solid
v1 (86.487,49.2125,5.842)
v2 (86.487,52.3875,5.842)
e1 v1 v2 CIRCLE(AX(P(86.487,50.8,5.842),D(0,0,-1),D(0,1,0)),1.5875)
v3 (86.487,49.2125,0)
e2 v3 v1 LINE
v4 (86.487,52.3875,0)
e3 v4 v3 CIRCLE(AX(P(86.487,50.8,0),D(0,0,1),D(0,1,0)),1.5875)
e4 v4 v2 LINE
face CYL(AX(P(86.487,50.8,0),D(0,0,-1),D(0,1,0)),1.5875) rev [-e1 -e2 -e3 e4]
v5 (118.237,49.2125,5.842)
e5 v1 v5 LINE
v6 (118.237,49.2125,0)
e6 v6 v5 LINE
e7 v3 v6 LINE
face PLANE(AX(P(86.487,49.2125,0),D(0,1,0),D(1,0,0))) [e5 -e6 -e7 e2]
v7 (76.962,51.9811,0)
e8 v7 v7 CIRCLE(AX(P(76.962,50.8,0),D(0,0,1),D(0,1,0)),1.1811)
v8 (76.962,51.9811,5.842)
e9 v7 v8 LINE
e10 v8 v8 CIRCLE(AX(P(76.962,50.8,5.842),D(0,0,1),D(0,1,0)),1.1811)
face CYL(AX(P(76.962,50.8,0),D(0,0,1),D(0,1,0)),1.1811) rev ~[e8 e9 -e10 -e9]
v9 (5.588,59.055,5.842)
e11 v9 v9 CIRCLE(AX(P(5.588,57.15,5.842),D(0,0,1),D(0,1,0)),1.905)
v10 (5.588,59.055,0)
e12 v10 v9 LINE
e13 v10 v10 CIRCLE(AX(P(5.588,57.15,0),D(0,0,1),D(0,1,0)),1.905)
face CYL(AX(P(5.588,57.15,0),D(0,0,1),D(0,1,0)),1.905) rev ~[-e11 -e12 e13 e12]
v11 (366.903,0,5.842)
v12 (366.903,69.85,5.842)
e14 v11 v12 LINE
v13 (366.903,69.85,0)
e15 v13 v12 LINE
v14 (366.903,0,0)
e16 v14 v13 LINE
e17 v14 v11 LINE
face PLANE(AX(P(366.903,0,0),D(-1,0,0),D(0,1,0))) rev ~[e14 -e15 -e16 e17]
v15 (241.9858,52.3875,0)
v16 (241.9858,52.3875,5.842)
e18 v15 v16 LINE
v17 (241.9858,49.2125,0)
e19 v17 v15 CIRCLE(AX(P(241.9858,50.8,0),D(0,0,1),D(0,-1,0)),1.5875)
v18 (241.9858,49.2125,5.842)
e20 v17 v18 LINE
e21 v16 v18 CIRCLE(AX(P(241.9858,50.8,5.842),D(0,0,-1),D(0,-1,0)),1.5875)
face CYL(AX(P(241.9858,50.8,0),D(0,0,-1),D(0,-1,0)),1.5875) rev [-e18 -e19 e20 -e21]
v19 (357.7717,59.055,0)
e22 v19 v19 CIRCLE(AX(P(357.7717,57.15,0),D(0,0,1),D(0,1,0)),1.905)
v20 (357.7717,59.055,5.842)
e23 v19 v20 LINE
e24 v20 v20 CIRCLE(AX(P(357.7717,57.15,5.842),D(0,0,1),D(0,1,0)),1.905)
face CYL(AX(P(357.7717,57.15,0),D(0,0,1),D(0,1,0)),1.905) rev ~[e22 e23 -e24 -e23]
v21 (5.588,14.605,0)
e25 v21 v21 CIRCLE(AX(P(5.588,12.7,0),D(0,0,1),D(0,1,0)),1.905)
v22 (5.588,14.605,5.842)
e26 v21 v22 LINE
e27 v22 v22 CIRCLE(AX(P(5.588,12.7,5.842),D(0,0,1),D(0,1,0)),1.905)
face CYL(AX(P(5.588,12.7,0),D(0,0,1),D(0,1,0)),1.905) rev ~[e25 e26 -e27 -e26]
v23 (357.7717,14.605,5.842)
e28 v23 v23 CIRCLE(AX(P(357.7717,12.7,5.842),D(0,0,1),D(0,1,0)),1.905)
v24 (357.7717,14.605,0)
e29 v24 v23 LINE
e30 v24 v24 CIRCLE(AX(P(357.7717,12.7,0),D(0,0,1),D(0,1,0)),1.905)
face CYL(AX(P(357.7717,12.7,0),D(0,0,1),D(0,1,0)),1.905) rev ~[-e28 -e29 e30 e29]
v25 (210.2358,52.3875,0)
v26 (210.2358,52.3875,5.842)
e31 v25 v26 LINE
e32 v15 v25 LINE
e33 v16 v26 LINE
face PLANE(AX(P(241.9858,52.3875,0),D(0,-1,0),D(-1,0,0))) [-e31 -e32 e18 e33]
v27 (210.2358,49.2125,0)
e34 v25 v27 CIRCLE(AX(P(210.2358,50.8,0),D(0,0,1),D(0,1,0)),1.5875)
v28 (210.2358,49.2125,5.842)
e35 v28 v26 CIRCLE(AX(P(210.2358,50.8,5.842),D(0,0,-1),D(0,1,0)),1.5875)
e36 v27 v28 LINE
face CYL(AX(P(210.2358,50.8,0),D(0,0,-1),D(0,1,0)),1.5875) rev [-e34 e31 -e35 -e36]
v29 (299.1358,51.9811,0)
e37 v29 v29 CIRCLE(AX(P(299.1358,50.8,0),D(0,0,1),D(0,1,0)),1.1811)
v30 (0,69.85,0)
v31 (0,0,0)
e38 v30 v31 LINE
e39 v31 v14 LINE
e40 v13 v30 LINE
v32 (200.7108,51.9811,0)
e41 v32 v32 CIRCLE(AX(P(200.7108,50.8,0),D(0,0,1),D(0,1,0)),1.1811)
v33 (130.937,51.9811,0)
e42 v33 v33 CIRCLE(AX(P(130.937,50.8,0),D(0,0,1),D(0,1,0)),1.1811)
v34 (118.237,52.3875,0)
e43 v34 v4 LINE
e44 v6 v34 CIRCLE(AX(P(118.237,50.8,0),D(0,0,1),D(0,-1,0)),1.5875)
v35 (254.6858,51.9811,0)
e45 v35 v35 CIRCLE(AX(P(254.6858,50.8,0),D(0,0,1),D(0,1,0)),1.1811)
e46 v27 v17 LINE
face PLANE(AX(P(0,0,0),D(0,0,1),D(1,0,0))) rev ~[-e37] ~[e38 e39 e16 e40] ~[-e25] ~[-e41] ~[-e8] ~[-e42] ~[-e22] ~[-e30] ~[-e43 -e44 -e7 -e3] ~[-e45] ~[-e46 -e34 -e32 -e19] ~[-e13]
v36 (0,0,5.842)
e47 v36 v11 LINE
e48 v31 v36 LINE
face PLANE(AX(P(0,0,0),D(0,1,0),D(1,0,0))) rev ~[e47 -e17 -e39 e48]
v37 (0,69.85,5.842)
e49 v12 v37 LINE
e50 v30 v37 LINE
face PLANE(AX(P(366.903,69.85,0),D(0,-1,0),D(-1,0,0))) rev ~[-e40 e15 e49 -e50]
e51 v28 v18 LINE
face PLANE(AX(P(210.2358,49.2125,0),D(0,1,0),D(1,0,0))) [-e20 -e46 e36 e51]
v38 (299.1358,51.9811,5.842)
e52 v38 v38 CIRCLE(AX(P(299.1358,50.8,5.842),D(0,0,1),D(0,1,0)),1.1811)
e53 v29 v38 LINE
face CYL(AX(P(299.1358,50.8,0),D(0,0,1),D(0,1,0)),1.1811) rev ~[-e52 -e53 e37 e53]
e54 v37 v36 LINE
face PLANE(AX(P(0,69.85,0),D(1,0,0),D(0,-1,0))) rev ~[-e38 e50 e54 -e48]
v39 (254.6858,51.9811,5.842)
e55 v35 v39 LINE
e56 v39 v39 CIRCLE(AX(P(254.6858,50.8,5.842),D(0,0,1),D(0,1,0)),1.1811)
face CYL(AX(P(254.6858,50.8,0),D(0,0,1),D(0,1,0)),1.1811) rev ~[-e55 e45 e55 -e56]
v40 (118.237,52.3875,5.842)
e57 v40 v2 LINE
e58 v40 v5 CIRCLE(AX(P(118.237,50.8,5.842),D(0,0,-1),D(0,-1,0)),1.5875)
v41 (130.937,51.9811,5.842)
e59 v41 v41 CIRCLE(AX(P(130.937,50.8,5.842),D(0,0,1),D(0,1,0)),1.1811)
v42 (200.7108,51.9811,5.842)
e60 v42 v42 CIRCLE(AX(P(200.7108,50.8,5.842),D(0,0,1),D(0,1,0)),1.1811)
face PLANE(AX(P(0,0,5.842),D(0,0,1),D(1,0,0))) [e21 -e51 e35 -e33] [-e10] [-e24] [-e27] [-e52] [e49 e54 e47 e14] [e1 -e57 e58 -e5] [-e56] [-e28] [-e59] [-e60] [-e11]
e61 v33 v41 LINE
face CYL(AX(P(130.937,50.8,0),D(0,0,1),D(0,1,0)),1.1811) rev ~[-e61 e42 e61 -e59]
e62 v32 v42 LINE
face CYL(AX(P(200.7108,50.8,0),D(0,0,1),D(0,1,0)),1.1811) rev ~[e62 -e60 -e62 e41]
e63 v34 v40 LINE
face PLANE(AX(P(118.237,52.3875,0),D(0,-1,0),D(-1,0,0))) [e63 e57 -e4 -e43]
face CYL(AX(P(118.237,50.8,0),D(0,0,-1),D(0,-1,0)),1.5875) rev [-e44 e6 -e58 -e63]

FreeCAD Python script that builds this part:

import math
import FreeCAD as App
import Part
import Sketcher
Q = App.Units.Quantity

doc = App.newDocument("Part")
body = doc.addObject("PartDesign::Body", "Body")

# Sketch on XY plane
sketch1 = body.newObject("Sketcher::SketchObject", "Sketch")
sketch1.AttachmentSupport = (doc.getObject("XY_Plane"), [""])
sketch1.MapMode = "FlatFace"
sketch1.addGeometry([
    Part.LineSegment(App.Vector(367, 70, 0), App.Vector(0, 70, 0)),
    Part.LineSegment(App.Vector(0, 70, 0), App.Vector(0, 0, 0)),
    Part.LineSegment(App.Vector(0, 0, 0), App.Vector(367, 0, 0)),
    Part.LineSegment(App.Vector(367, 0, 0), App.Vector(367, 70, 0)),
], False)
sketch1.addConstraint([
    Sketcher.Constraint("Coincident", 0, 2, 1, 1),
    Sketcher.Constraint("Coincident", 1, 2, 2, 1),
    Sketcher.Constraint("Coincident", 2, 2, 3, 1),
    Sketcher.Constraint("Coincident", 3, 2, 0, 1),
    Sketcher.Constraint("Horizontal", 0),
    Sketcher.Constraint("Vertical", 1),
    Sketcher.Constraint("Horizontal", 2),
    Sketcher.Constraint("Vertical", 3),
    Sketcher.Constraint("Coincident", 1, 2, -1, 1),
    Sketcher.Constraint("DistanceY", 1, 2, 1, 1, Q("2.75 in")),
    Sketcher.Constraint("DistanceX", 0, 2, 0, 1, Q("14.445 in")),
])
pad1 = body.newObject("PartDesign::Pad", "Pad")
pad1.Profile = sketch1
pad1.Length = Q("0.23 in")

# Sketch on XY plane
sketch2 = body.newObject("Sketcher::SketchObject", "Sketch001")
sketch2.AttachmentSupport = (doc.getObject("XY_Plane"), [""])
sketch2.MapMode = "FlatFace"
sketch2.addGeometry([
    Part.Circle(App.Vector(357.8, 57.1, 0), App.Vector(0, 0, 1), 1.9),
    Part.Circle(App.Vector(357.8, 12.7, 0), App.Vector(0, 0, 1), 1.9),
], False)
sketch2.addConstraint([
    Sketcher.Constraint("Equal", 0, 1),
    Sketcher.Constraint("Vertical", 0, 3, 1, 3),
    Sketcher.Constraint("Diameter", 0, Q("0.15 in")),
    Sketcher.Constraint("DistanceY", -1, 1, 1, 3, Q("0.5 in")),
    Sketcher.Constraint("DistanceY", -1, 1, 0, 3, Q("2.25 in")),
    Sketcher.Constraint("DistanceX", -1, 1, 0, 3, Q("14.0855 in")),
])
doc.recompute()
hole = body.newObject("PartDesign::Hole", "Hole")
hole.Profile = sketch2
hole.ThreadType = "None"
hole.Diameter = Q("0.15 in")
hole.DepthType = "ThroughAll"
hole.Reversed = True

# Sketch on XY plane
sketch3 = body.newObject("Sketcher::SketchObject", "Sketch002")
sketch3.AttachmentSupport = (doc.getObject("XY_Plane"), [""])
sketch3.MapMode = "FlatFace"
sketch3.addGeometry([
    Part.Circle(App.Vector(5.6, 12.7, 0), App.Vector(0, 0, 1), 1.9),
    Part.Circle(App.Vector(5.6, 57.1, 0), App.Vector(0, 0, 1), 1.9),
], False)
sketch3.addConstraint([
    Sketcher.Constraint("Equal", 0, 1),
    Sketcher.Constraint("Vertical", 0, 3, 1, 3),
    Sketcher.Constraint("Diameter", 0, Q("0.15 in")),
    Sketcher.Constraint("DistanceY", -1, 1, 0, 3, Q("0.5 in")),
    Sketcher.Constraint("DistanceX", -1, 1, 0, 3, Q("0.22 in")),
    Sketcher.Constraint("DistanceY", -1, 1, 1, 3, Q("2.25 in")),
])
doc.recompute()
hole2 = body.newObject("PartDesign::Hole", "Hole001")
hole2.Profile = sketch3
hole2.ThreadType = "None"
hole2.Diameter = Q("0.15 in")
hole2.DepthType = "ThroughAll"
hole2.Reversed = True

# Sketch on XY plane
sketch4 = body.newObject("Sketcher::SketchObject", "Sketch003")
sketch4.AttachmentSupport = (doc.getObject("XY_Plane"), [""])
sketch4.MapMode = "FlatFace"
sketch4.addGeometry([
    Part.ArcOfCircle(Part.Circle(App.Vector(242, 50.8, 0), App.Vector(0, 0, 1), 1.6), math.radians(-90), math.radians(90)),  # 0
    Part.LineSegment(App.Vector(242, 52.4, 0), App.Vector(210.2, 52.4, 0)),  # 1
    Part.ArcOfCircle(Part.Circle(App.Vector(210.2, 50.8, 0), App.Vector(0, 0, 1), 1.6), math.radians(90), math.radians(270)),  # 2
    Part.LineSegment(App.Vector(210.2, 49.2, 0), App.Vector(242, 49.2, 0)),  # 3
    Part.ArcOfCircle(Part.Circle(App.Vector(118.2, 50.8, 0), App.Vector(0, 0, 1), 1.6), math.radians(-90), math.radians(90)),  # 4
    Part.LineSegment(App.Vector(118.2, 52.4, 0), App.Vector(86.5, 52.4, 0)),  # 5
    Part.ArcOfCircle(Part.Circle(App.Vector(86.5, 50.8, 0), App.Vector(0, 0, 1), 1.6), math.radians(90), math.radians(270)),  # 6
    Part.LineSegment(App.Vector(86.5, 49.2, 0), App.Vector(118.2, 49.2, 0)),  # 7
], False)
sketch4.addConstraint([
    Sketcher.Constraint("Tangent", 0, 2, 1, 1),
    Sketcher.Constraint("Tangent", 1, 2, 2, 1),
    Sketcher.Constraint("Tangent", 2, 2, 3, 1),
    Sketcher.Constraint("Tangent", 3, 2, 0, 1),
    Sketcher.Constraint("Tangent", 4, 2, 5, 1),
    Sketcher.Constraint("Tangent", 5, 2, 6, 1),
    Sketcher.Constraint("Tangent", 6, 2, 7, 1),
    Sketcher.Constraint("Tangent", 7, 2, 4, 1),
    Sketcher.Constraint("Horizontal", 1),
    Sketcher.Constraint("Horizontal", 3),
    Sketcher.Constraint("Horizontal", 5),
    Sketcher.Constraint("Horizontal", 7),
    Sketcher.Constraint("Equal", 2, 4),
    Sketcher.Constraint("Horizontal", 2, 3, 4, 3),
    Sketcher.Constraint("Equal", 3, 5),
    Sketcher.Constraint("Radius", 0, Q("0.0625 in")),
    Sketcher.Constraint("DistanceX", 1, 2, 1, 1, Q("1.25 in")),
    Sketcher.Constraint("DistanceY", -1, 1, 0, 3, Q("2 in")),
    Sketcher.Constraint("DistanceX", -1, 1, 0, 3, Q("9.527 in")),
    Sketcher.Constraint("DistanceX", -1, 1, 4, 3, Q("4.655 in")),
])
pocket1 = body.newObject("PartDesign::Pocket", "Pocket")
pocket1.Profile = sketch4
pocket1.Type = "UpToFirst"
pocket1.Reversed = True

# Sketch on XY plane
sketch5 = body.newObject("Sketcher::SketchObject", "Sketch004")
sketch5.AttachmentSupport = (doc.getObject("XY_Plane"), [""])
sketch5.MapMode = "FlatFace"
sketch5.addGeometry([
    Part.Circle(App.Vector(130.9, 50.8, 0), App.Vector(0, 0, 1), 1.2),  # 0
    Part.Circle(App.Vector(299.1, 50.8, 0), App.Vector(0, 0, 1), 1.2),  # 1
    Part.Circle(App.Vector(254.7, 50.8, 0), App.Vector(0, 0, 1), 1.2),  # 2
    Part.Circle(App.Vector(77, 50.8, 0), App.Vector(0, 0, 1), 1.2),  # 3
    Part.Circle(App.Vector(200.7, 50.8, 0), App.Vector(0, 0, 1), 1.2),  # 4
], False)
sketch5.addConstraint([
    Sketcher.Constraint("Equal", 0, 1),
    Sketcher.Constraint("Equal", 1, 2),
    Sketcher.Constraint("Equal", 2, 3),
    Sketcher.Constraint("Equal", 3, 4),
    Sketcher.Constraint("Horizontal", 0, 3, 1, 3),
    Sketcher.Constraint("Horizontal", 1, 3, 2, 3),
    Sketcher.Constraint("Horizontal", 2, 3, 3, 3),
    Sketcher.Constraint("Horizontal", 3, 3, 4, 3),
    Sketcher.Constraint("Diameter", 0, Q("0.093 in")),
    Sketcher.Constraint("DistanceY", -1, 1, 0, 3, Q("2 in")),
    Sketcher.Constraint("DistanceX", -1, 1, 3, 3, Q("3.03 in")),
    Sketcher.Constraint("DistanceX", 2, 3, 1, 3, Q("1.75 in")),
    Sketcher.Constraint("DistanceX", -1, 1, 0, 3, Q("5.155 in")),
    Sketcher.Constraint("DistanceX", -1, 1, 1, 3, Q("11.777 in")),
    Sketcher.Constraint("DistanceX", -1, 1, 4, 3, Q("7.902 in")),
])
doc.recompute()
hole3 = body.newObject("PartDesign::Hole", "Hole002")
hole3.Profile = sketch5
hole3.ThreadType = "None"
hole3.Diameter = Q("0.093 in")
hole3.DepthType = "ThroughAll"
hole3.Reversed = True

doc.recompute()
